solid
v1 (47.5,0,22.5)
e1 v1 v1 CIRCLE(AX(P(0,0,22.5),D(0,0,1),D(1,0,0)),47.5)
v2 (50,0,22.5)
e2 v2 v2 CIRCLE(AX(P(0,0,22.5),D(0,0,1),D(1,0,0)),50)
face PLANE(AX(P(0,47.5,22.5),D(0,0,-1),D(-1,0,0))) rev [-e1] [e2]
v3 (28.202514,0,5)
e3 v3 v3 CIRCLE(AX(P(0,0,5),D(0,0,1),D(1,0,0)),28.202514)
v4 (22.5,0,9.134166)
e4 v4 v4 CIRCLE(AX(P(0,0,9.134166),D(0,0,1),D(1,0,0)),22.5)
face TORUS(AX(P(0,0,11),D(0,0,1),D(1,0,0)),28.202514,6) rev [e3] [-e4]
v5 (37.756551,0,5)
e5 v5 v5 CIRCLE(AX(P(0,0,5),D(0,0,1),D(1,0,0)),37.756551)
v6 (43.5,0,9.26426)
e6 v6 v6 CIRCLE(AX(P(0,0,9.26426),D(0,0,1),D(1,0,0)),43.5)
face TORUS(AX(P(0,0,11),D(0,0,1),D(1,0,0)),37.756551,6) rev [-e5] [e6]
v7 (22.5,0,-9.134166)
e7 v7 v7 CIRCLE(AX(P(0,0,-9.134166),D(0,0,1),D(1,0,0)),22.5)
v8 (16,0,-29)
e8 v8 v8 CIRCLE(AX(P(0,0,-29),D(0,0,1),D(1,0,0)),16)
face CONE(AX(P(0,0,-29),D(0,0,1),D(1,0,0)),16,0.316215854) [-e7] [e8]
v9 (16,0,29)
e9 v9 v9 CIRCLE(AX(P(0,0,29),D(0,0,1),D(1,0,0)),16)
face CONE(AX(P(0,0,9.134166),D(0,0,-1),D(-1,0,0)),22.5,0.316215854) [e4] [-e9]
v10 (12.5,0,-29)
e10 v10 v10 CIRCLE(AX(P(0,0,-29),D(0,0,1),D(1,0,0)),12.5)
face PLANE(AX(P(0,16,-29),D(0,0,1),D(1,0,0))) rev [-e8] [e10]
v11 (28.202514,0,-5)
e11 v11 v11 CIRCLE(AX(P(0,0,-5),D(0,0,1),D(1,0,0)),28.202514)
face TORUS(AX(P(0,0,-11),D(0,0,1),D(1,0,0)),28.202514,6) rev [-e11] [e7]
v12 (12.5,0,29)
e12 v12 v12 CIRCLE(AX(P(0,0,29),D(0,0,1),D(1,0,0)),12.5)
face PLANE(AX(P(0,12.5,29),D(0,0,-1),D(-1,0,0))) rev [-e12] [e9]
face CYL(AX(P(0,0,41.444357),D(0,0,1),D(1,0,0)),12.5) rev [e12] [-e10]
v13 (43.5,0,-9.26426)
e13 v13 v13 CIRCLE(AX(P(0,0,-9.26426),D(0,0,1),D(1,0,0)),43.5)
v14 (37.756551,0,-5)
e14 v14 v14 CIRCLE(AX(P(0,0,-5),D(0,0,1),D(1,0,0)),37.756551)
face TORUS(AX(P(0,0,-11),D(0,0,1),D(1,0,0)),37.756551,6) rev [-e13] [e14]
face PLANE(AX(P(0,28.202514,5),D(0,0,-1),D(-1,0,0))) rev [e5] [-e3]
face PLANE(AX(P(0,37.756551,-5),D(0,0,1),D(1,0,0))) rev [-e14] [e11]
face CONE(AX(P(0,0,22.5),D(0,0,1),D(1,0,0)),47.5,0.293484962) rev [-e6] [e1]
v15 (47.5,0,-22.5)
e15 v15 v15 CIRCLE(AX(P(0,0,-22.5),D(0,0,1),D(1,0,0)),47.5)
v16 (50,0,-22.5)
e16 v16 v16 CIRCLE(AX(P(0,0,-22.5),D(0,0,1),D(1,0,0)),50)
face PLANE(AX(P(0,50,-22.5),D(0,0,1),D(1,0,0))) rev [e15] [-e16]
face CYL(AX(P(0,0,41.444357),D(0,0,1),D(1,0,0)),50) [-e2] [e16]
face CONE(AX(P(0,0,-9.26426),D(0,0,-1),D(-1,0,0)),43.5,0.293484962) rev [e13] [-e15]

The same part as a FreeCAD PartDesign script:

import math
import FreeCAD as App
import Part
import Sketcher

doc = App.newDocument("Part")
body = doc.addObject("PartDesign::Body", "Body")

# Sketch on YZ plane
sketch1 = body.newObject("Sketcher::SketchObject", "Sketch")
sketch1.AttachmentSupport = (doc.getObject("YZ_Plane"), [""])
sketch1.MapMode = "FlatFace"
sketch1.addGeometry(Part.LineSegment(App.Vector(50, -22.5, 0), App.Vector(50, 22.5, 0)), False)
sketch1.addGeometry(Part.LineSegment(App.Vector(50, 22.5, 0), App.Vector(47.5, 22.5, 0)), False)
sketch1.addGeometry(Part.LineSegment(App.Vector(47.5, 22.5, 0), App.Vector(43.5, 9.3, 0)), False)
sketch1.addGeometry(Part.ArcOfCircle(Part.Circle(App.Vector(37.8, 11, 0), App.Vector(0, 0, 1), 6), math.radians(-90), math.radians(-17)), False)
sketch1.addGeometry(Part.LineSegment(App.Vector(37.8, 5, 0), App.Vector(28.2, 5, 0)), False)
sketch1.addGeometry(Part.ArcOfCircle(Part.Circle(App.Vector(28.2, 11, 0), App.Vector(0, 0, 1), 6), math.radians(-162), math.radians(-90)), False)
sketch1.addGeometry(Part.LineSegment(App.Vector(22.5, 9.1, 0), App.Vector(16, 29, 0)), False)
sketch1.addGeometry(Part.LineSegment(App.Vector(16, 29, 0), App.Vector(12.5, 29, 0)), False)
sketch1.addGeometry(Part.LineSegment(App.Vector(12.5, 29, 0), App.Vector(12.5, -29, 0)), False)
sketch1.addGeometry(Part.LineSegment(App.Vector(12.5, -29, 0), App.Vector(16, -29, 0)), False)
sketch1.addGeometry(Part.LineSegment(App.Vector(16, -29, 0), App.Vector(22.5, -9.1, 0)), False)
sketch1.addGeometry(Part.ArcOfCircle(Part.Circle(App.Vector(28.2, -11, 0), App.Vector(0, 0, 1), 6), math.radians(90), math.radians(162)), False)
sketch1.addGeometry(Part.LineSegment(App.Vector(28.2, -5, 0), App.Vector(37.8, -5, 0)), False)
sketch1.addGeometry(Part.ArcOfCircle(Part.Circle(App.Vector(37.8, -11, 0), App.Vector(0, 0, 1), 6), math.radians(17), math.radians(90)), False)
sketch1.addGeometry(Part.LineSegment(App.Vector(43.5, -9.3, 0), App.Vector(47.5, -22.5, 0)), False)
sketch1.addGeometry(Part.LineSegment(App.Vector(47.5, -22.5, 0), App.Vector(50, -22.5, 0)), False)
sketch1.addConstraint(Sketcher.Constraint("Coincident", 0, 2, 1, 1))
sketch1.addConstraint(Sketcher.Constraint("Coincident", 1, 2, 2, 1))
sketch1.addConstraint(Sketcher.Constraint("Tangent", 2, 2, 3, 2))
sketch1.addConstraint(Sketcher.Constraint("Tangent", 3, 1, 4, 1))
sketch1.addConstraint(Sketcher.Constraint("Tangent", 4, 2, 5, 2))
sketch1.addConstraint(Sketcher.Constraint("Tangent", 5, 1, 6, 1))
sketch1.addConstraint(Sketcher.Constraint("Coincident", 6, 2, 7, 1))
sketch1.addConstraint(Sketcher.Constraint("Coincident", 7, 2, 8, 1))
sketch1.addConstraint(Sketcher.Constraint("Coincident", 8, 2, 9, 1))
sketch1.addConstraint(Sketcher.Constraint("Coincident", 9, 2, 10, 1))
sketch1.addConstraint(Sketcher.Constraint("Tangent", 10, 2, 11, 2))
sketch1.addConstraint(Sketcher.Constraint("Tangent", 11, 1, 12, 1))
sketch1.addConstraint(Sketcher.Constraint("Tangent", 12, 2, 13, 2))
sketch1.addConstraint(Sketcher.Constraint("Tangent", 13, 1, 14, 1))
sketch1.addConstraint(Sketcher.Constraint("Coincident", 14, 2, 15, 1))
sketch1.addConstraint(Sketcher.Constraint("Coincident", 15, 2, 0, 1))
sketch1.addConstraint(Sketcher.Constraint("Vertical", 0))
sketch1.addConstraint(Sketcher.Constraint("Horizontal", 1))
sketch1.addConstraint(Sketcher.Constraint("Horizontal", 4))
sketch1.addConstraint(Sketcher.Constraint("Horizontal", 7))
sketch1.addConstraint(Sketcher.Constraint("Vertical", 8))
sketch1.addConstraint(Sketcher.Constraint("Horizontal", 9))
sketch1.addConstraint(Sketcher.Constraint("Horizontal", 12))
sketch1.addConstraint(Sketcher.Constraint("Horizontal", 15))
sketch1.addConstraint(Sketcher.Constraint("Equal", 3, 5))
sketch1.addConstraint(Sketcher.Constraint("Equal", 5, 11))
sketch1.addConstraint(Sketcher.Constraint("Equal", 11, 13))
sketch1.addConstraint(Sketcher.Constraint("Symmetric", 5, 3, 11, 3, -1))
sketch1.addConstraint(Sketcher.Constraint("Symmetric", 6, 2, 9, 2, -1))
sketch1.addConstraint(Sketcher.Constraint("Symmetric", 2, 2, 13, 1, -1))
sketch1.addConstraint(Sketcher.Constraint("Vertical", 1, 2, 14, 2))
sketch1.addConstraint(Sketcher.Constraint("Radius", 3, 6.0))
sketch1.addConstraint(Sketcher.Constraint("DistanceY", 0, 1, 0, 2, 45.0))
sketch1.addConstraint(Sketcher.Constraint("DistanceY", 8, 2, 8, 1, 58.0))
sketch1.addConstraint(Sketcher.Constraint("DistanceX", 1, 2, 1, 1, 2.5))
sketch1.addConstraint(Sketcher.Constraint("DistanceX", 7, 2, 7, 1, 3.5))
sketch1.addConstraint(Sketcher.Constraint("DistanceY", -1, 1, 3, 3, 11.0))
sketch1.addConstraint(Sketcher.Constraint("DistanceX", -1, 1, 0, 2, 50.0))
sketch1.addConstraint(Sketcher.Constraint("DistanceX", -1, 1, 6, 2, 16.0))
sketch1.addConstraint(Sketcher.Constraint("DistanceX", 2, 2, 1, 2, 4.0))
sketch1.addConstraint(Sketcher.Constraint("DistanceX", 7, 2, 5, 1, 10.0))
revolution = body.newObject("PartDesign::Revolution", "Revolution")
revolution.Profile = sketch1
revolution.ReferenceAxis = (sketch1, ["V_Axis"])
revolution.Angle = 360

doc.recompute()
